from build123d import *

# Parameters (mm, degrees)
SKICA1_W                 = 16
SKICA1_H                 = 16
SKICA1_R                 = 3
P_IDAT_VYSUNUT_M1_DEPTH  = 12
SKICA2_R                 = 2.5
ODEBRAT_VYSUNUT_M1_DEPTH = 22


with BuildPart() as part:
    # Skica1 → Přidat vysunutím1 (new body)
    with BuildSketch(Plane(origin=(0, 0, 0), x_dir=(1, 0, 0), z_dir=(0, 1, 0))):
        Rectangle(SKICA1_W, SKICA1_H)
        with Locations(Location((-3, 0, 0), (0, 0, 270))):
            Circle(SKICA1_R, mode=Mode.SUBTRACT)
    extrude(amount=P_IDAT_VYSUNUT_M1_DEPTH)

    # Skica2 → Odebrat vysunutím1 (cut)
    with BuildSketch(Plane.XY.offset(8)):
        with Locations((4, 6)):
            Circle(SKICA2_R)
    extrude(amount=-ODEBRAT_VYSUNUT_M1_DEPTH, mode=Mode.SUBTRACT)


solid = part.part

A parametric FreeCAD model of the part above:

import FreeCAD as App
import Part
import Sketcher
from FreeCAD import Vector

doc = App.newDocument("Part")
params = doc.addObject("Spreadsheet::Sheet", "Params")
for row, (alias, value) in enumerate([
    ("sketch1_diameter", "6 mm"),
    ("sketch1_width", "16 mm"),
    ("pad1_length", "12 mm"),
    ("sketch2_diameter", "5 mm"),
    ("pocket1_length", "22 mm"),
], start=1):
    params.set(f"A{row}", alias)
    params.set(f"B{row}", "=" + value)
    params.setAlias(f"B{row}", alias)

body = doc.addObject("PartDesign::Body", "Body")

# Sketch on XZ plane
sketch1 = doc.addObject("Sketcher::SketchObject", "Sketch")
body.addObject(sketch1)
sketch1.AttachmentSupport = (doc.XZ_Plane, [""])
sketch1.MapMode = "FlatFace"
sketch1.addGeometry([
    Part.LineSegment(Vector(-8, -8, 0), Vector(-8, 8, 0)),  # 0
    Part.LineSegment(Vector(-8, 8, 0), Vector(8, 8, 0)),  # 1
    Part.LineSegment(Vector(8, 8, 0), Vector(8, -8, 0)),  # 2
    Part.LineSegment(Vector(8, -8, 0), Vector(-8, -8, 0)),  # 3
    Part.Circle(Vector(-3, 0, 0), Vector(0, 0, 1), 3),  # 4
], False)
sketch1.addConstraint([
    Sketcher.Constraint("Coincident", 0, 2, 1, 1),
    Sketcher.Constraint("Coincident", 1, 2, 2, 1),
    Sketcher.Constraint("Coincident", 2, 2, 3, 1),
    Sketcher.Constraint("Coincident", 3, 2, 0, 1),
    Sketcher.Constraint("Vertical", 0),
    Sketcher.Constraint("Horizontal", 1),
    Sketcher.Constraint("Vertical", 2),
    Sketcher.Constraint("Horizontal", 3),
    Sketcher.Constraint("Symmetric", 0, 2, 2, 2, -1, 1),
    Sketcher.Constraint("PointOnObject", 4, 3, -1),
    Sketcher.Constraint("Equal", 3, 0),
    Sketcher.Constraint("Diameter", 4, 6.0),
    Sketcher.Constraint("DistanceX", 1, 1, 1, 2, 16.0),
    Sketcher.Constraint("DistanceX", 4, 3, -1, 1, 3.0),
])
sketch1.setExpression("Constraints[11]", "Params.sketch1_diameter")
sketch1.setExpression("Constraints[12]", "Params.sketch1_width")
pad1 = doc.addObject("PartDesign::Pad", "Pad")
body.addObject(pad1)
pad1.Profile = sketch1
pad1.setExpression("Length", "Params.pad1_length")
pad1.Reversed = True

# Sketch on XY plane
sketch2 = doc.addObject("Sketcher::SketchObject", "Sketch001")
body.addObject(sketch2)
sketch2.AttachmentSupport = (doc.XY_Plane, [""])
sketch2.MapMode = "FlatFace"
sketch2.AttachmentOffset = App.Placement(Vector(0, 0, 8), App.Rotation())
sketch2.addGeometry(Part.Circle(Vector(4, 6, 0), Vector(0, 0, 1), 2.5), False)
sketch2.addConstraint([
    Sketcher.Constraint("Diameter", 0, 5.0),
    Sketcher.Constraint("DistanceX", -1, 1, 0, 3, 4.0),
    Sketcher.Constraint("DistanceY", -1, 1, 0, 3, 6.0),
])
sketch2.setExpression("Constraints[0]", "Params.sketch2_diameter")
pocket1 = doc.addObject("PartDesign::Pocket", "Pocket")
body.addObject(pocket1)
pocket1.Profile = sketch2
pocket1.setExpression("Length", "Params.pocket1_length")

doc.recompute()
